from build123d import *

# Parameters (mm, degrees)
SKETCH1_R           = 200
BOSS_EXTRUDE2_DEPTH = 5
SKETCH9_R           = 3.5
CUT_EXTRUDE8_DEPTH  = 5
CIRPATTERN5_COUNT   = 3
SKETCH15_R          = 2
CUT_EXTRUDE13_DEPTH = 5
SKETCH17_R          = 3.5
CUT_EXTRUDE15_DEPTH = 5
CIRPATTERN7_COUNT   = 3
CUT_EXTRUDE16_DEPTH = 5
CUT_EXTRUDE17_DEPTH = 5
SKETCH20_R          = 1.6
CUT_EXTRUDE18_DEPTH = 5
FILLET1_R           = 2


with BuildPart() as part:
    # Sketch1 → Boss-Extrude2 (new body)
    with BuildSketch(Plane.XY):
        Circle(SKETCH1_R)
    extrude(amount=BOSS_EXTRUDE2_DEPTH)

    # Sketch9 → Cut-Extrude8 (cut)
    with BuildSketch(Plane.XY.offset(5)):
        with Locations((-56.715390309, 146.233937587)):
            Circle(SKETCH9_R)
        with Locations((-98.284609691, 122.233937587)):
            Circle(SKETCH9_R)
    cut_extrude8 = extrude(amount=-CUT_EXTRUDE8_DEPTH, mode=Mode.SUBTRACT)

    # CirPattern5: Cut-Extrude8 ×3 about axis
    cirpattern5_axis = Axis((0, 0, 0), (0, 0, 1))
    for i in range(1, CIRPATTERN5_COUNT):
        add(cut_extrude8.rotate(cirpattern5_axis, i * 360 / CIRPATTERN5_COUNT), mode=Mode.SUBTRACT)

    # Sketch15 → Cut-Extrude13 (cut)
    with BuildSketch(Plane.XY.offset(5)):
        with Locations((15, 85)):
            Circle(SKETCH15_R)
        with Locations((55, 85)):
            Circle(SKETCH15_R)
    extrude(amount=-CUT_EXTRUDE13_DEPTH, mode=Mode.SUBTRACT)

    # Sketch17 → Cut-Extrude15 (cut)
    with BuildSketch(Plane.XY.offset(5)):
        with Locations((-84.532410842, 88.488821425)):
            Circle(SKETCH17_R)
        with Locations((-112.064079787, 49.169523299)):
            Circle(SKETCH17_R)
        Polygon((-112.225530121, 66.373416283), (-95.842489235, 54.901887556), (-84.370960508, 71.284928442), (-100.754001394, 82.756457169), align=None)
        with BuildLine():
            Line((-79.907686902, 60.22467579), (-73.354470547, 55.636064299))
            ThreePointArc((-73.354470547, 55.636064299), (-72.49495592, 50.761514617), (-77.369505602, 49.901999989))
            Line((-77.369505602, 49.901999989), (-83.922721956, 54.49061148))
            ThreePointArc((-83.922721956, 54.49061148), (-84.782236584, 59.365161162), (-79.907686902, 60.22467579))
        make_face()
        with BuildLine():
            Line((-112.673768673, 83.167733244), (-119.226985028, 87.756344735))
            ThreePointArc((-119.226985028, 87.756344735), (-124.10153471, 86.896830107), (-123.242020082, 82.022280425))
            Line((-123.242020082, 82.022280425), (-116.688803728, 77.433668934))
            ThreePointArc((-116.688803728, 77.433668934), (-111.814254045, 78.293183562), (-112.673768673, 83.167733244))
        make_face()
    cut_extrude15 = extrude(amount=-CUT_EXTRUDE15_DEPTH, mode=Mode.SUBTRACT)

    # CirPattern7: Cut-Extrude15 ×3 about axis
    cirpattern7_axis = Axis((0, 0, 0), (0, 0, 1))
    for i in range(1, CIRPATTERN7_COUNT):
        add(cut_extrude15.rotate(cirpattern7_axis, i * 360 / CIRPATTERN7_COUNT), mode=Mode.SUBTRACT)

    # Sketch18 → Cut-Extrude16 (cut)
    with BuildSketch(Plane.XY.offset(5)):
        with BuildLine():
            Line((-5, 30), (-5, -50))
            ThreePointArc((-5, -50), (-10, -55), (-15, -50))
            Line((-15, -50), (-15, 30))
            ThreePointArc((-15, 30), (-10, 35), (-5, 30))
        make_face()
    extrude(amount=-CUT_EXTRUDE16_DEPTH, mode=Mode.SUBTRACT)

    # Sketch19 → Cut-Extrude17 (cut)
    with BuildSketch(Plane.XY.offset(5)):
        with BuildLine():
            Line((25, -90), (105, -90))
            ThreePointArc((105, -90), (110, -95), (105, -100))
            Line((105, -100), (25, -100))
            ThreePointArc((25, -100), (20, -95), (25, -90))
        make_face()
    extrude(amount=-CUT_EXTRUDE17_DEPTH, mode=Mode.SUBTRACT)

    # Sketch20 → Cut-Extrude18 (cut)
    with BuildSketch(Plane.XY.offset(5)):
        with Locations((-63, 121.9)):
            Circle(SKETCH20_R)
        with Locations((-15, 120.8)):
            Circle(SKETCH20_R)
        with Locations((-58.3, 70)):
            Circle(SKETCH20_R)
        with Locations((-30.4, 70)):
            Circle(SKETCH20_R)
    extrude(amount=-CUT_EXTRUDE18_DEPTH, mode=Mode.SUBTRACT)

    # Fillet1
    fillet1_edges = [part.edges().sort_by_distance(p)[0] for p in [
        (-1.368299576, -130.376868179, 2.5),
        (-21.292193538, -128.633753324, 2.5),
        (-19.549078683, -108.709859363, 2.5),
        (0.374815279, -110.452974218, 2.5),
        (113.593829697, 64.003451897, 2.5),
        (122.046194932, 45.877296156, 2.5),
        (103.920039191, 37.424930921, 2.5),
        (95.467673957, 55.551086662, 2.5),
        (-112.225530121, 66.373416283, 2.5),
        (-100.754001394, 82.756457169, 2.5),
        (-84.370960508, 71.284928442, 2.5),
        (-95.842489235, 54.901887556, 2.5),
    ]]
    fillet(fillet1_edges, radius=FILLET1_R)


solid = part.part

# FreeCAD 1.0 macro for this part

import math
import FreeCAD as App
import Part
import Sketcher

V = App.Vector
Q = App.Units.Quantity


def edges_at(feature, points):
    """Names of the edges that pass closest to the given points."""
    edges = feature.Shape.Edges
    near = lambda p: min(range(len(edges)), key=lambda i: edges[i].distToShape(Part.Vertex(*p))[0])
    return sorted({f"Edge{near(p) + 1}" for p in points})


def add_polygon(sketch, points):
    """Adds a closed chain of lines whose ends are joined by coincident constraints."""
    first, n = sketch.GeometryCount, len(points)
    for a, b in zip(points, points[1:] + points[:1]):
        sketch.addGeometry(Part.LineSegment(App.Vector(*a, 0), App.Vector(*b, 0)), False)
    for i in range(n):
        sketch.addConstraint(Sketcher.Constraint("Coincident", first + i, 2, first + (i + 1) % n, 1))

doc = App.newDocument("Part")
params = doc.addObject("Spreadsheet::Sheet", "Params")
for row, (alias, value) in enumerate([
    ("sketch1_diameter", "400 mm"),
    ("pad1_length", "5 mm"),
    ("sketch2_diameter", "7 mm"),
    ("pocket1_length", "5 mm"),
    ("sketch3_diameter", "4 mm"),
    ("pocket2_length", "5 mm"),
    ("sketch4_diameter", "7 mm"),
    ("sketch4_length", "20 mm"),
    ("sketch4_length2", "8 mm"),
    ("pocket3_length", "5 mm"),
    ("sketch5_radius", "5 mm"),
    ("sketch5_height", "80 mm"),
    ("pocket4_length", "5 mm"),
    ("sketch6_radius", "5 mm"),
    ("sketch6_width", "80 mm"),
    ("pocket5_length", "5 mm"),
    ("sketch7_diameter", "3.2 mm"),
    ("pocket6_length", "5 mm"),
    ("fillet_radius", "2 mm"),
], start=1):
    params.set(f"A{row}", alias)
    params.set(f"B{row}", "=" + value)
    params.setAlias(f"B{row}", alias)

body = doc.addObject("PartDesign::Body", "Body")

# Sketch on XY plane
sketch1 = doc.addObject("Sketcher::SketchObject", "Sketch")
body.addObject(sketch1)
sketch1.AttachmentSupport = (doc.XY_Plane, [""])
sketch1.MapMode = "FlatFace"
sketch1.addGeometry(Part.Circle(V(0, 0, 0), V(0, 0, 1), 200), False)
sketch1.addConstraint([
    Sketcher.Constraint("Coincident", 0, 3, -1, 1),
    Sketcher.Constraint("Diameter", 0, Q("400 mm")),
])
sketch1.setExpression("Constraints[1]", "Params.sketch1_diameter")
pad1 = doc.addObject("PartDesign::Pad", "Pad")
body.addObject(pad1)
pad1.Profile = sketch1
pad1.setExpression("Length", "Params.pad1_length")

# Sketch on XY plane
sketch2 = doc.addObject("Sketcher::SketchObject", "Sketch001")
body.addObject(sketch2)
sketch2.AttachmentSupport = (doc.XY_Plane, [""])
sketch2.MapMode = "FlatFace"
sketch2.AttachmentOffset = App.Placement(V(0, 0, 5), App.Rotation())
sketch2.addGeometry([
    Part.Circle(V(-56.7, 146.2, 0), V(0, 0, 1), 3.5),
    Part.Circle(V(-98.3, 122.2, 0), V(0, 0, 1), 3.5),
], False)
sketch2.addConstraint([
    Sketcher.Constraint("Equal", 0, 1),
    Sketcher.Constraint("Diameter", 0, Q("7 mm")),
    Sketcher.Constraint("DistanceY", 1, 3, 0, 3, Q("24 mm")),
    Sketcher.Constraint("DistanceX", 0, 3, -1, 1, Q("56.71539 mm")),
    Sketcher.Constraint("DistanceX", 1, 3, -1, 1, Q("98.28461 mm")),
    Sketcher.Constraint("DistanceY", -1, 1, 0, 3, Q("146.233938 mm")),
])
sketch2.setExpression("Constraints[1]", "Params.sketch2_diameter")
pocket1 = doc.addObject("PartDesign::Pocket", "Pocket")
body.addObject(pocket1)
pocket1.Profile = sketch2
pocket1.setExpression("Length", "Params.pocket1_length")
doc.recompute()

polarpattern = doc.addObject("PartDesign::PolarPattern", "PolarPattern")
body.addObject(polarpattern)
polarpattern.Originals = [pocket1]
polarpattern.Axis = (doc.Z_Axis, [""])
polarpattern.Angle = 360
polarpattern.Occurrences = 3
body.Tip = polarpattern

# Sketch on XY plane
sketch3 = doc.addObject("Sketcher::SketchObject", "Sketch002")
body.addObject(sketch3)
sketch3.AttachmentSupport = (doc.XY_Plane, [""])
sketch3.MapMode = "FlatFace"
sketch3.AttachmentOffset = App.Placement(V(0, 0, 5), App.Rotation())
sketch3.addGeometry([
    Part.Circle(V(15, 85, 0), V(0, 0, 1), 2),
    Part.Circle(V(55, 85, 0), V(0, 0, 1), 2),
], False)
sketch3.addConstraint([
    Sketcher.Constraint("Equal", 0, 1),
    Sketcher.Constraint("Horizontal", 0, 3, 1, 3),
    Sketcher.Constraint("Diameter", 0, Q("4 mm")),
    Sketcher.Constraint("DistanceX", -1, 1, 0, 3, Q("15 mm")),
    Sketcher.Constraint("DistanceY", -1, 1, 0, 3, Q("85 mm")),
    Sketcher.Constraint("DistanceX", -1, 1, 1, 3, Q("55 mm")),
])
sketch3.setExpression("Constraints[2]", "Params.sketch3_diameter")
pocket2 = doc.addObject("PartDesign::Pocket", "Pocket001")
body.addObject(pocket2)
pocket2.Profile = sketch3
pocket2.setExpression("Length", "Params.pocket2_length")

# Sketch on XY plane
sketch4 = doc.addObject("Sketcher::SketchObject", "Sketch003")
body.addObject(sketch4)
sketch4.AttachmentSupport = (doc.XY_Plane, [""])
sketch4.MapMode = "FlatFace"
sketch4.AttachmentOffset = App.Placement(V(0, 0, 5), App.Rotation())
sketch4.addGeometry(Part.Circle(V(-84.5, 88.5, 0), V(0, 0, 1), 3.5), False)  # 0
sketch4.addGeometry(Part.Circle(V(-112.1, 49.2, 0), V(0, 0, 1), 3.5), False)  # 1
add_polygon(sketch4, [(-112.2, 66.4), (-95.8, 54.9), (-84.4, 71.3), (-100.8, 82.8)])  # lines 2-5
sketch4.addGeometry(Part.LineSegment(V(-73.4, 55.6, 0), V(-79.9, 60.2, 0)), False)  # 6
sketch4.addGeometry(Part.ArcOfCircle(Part.Circle(V(-81.9, 57.4, 0), V(0, 0, 1), 3.5), math.radians(55), math.radians(235)), False)  # 7
sketch4.addGeometry(Part.LineSegment(V(-83.9, 54.5, 0), V(-77.4, 49.9, 0)), False)  # 8
sketch4.addGeometry(Part.ArcOfCircle(Part.Circle(V(-75.4, 52.8, 0), V(0, 0, 1), 3.5), math.radians(-125), math.radians(55)), False)  # 9
sketch4.addGeometry(Part.LineSegment(V(-112.7, 83.2, 0), V(-119.2, 87.8, 0)), False)  # 10
sketch4.addGeometry(Part.ArcOfCircle(Part.Circle(V(-121.2, 84.9, 0), V(0, 0, 1), 3.5), math.radians(55), math.radians(235)), False)  # 11
sketch4.addGeometry(Part.LineSegment(V(-123.2, 82, 0), V(-116.7, 77.4, 0)), False)  # 12
sketch4.addGeometry(Part.ArcOfCircle(Part.Circle(V(-114.7, 80.3, 0), V(0, 0, 1), 3.5), math.radians(-125), math.radians(55)), False)  # 13
sketch4.addConstraint([
    Sketcher.Constraint("Tangent", 6, 2, 7, 1),
    Sketcher.Constraint("Tangent", 7, 2, 8, 1),
    Sketcher.Constraint("Tangent", 8, 2, 9, 1),
    Sketcher.Constraint("Tangent", 9, 2, 6, 1),
    Sketcher.Constraint("Tangent", 10, 2, 11, 1),
    Sketcher.Constraint("Tangent", 11, 2, 12, 1),
    Sketcher.Constraint("Tangent", 12, 2, 13, 1),
    Sketcher.Constraint("Tangent", 13, 2, 10, 1),
    Sketcher.Constraint("Equal", 0, 1),
    Sketcher.Constraint("Equal", 1, 7),
    Sketcher.Constraint("Equal", 7, 9),
    Sketcher.Constraint("Equal", 9, 11),
    Sketcher.Constraint("Equal", 11, 13),
    Sketcher.Constraint("Perpendicular", 2, 3),
    Sketcher.Constraint("Perpendicular", 3, 4),
    Sketcher.Constraint("Perpendicular", 4, 5),
    Sketcher.Constraint("Perpendicular", 5, 6),
    Sketcher.Constraint("Parallel", 8, 10),
    Sketcher.Constraint("Equal", 2, 3),
    Sketcher.Constraint("Equal", 8, 10),
    Sketcher.Constraint("Diameter", 0, Q("7 mm")),
    Sketcher.Constraint("Angle", 2, Q("-35 deg")),
    Sketcher.Constraint("Distance", 2, Q("20 mm")),
    Sketcher.Constraint("Distance", 6, Q("8 mm")),
    Sketcher.Constraint("DistanceX", 4, 2, -1, 1, Q("100.754001 mm")),
    Sketcher.Constraint("DistanceY", -1, 1, 8, 2, Q("49.902 mm")),
    Sketcher.Constraint("DistanceY", -1, 1, 13, 3, Q("80.300701 mm")),
    Sketcher.Constraint("DistanceY", 1, 3, 0, 3, Q("39.319298 mm")),
    Sketcher.Constraint("DistanceX", 11, 3, 7, 3, Q("39.319298 mm")),
    Sketcher.Constraint("DistanceX", 2, 2, 9, 3, Q("20.480501 mm")),
    Sketcher.Constraint("DistanceX", 0, 3, -1, 1, Q("84.532411 mm")),
    Sketcher.Constraint("DistanceY", -1, 1, 0, 3, Q("88.488821 mm")),
    Sketcher.Constraint("DistanceX", 1, 3, -1, 1, Q("112.06408 mm")),
    Sketcher.Constraint("DistanceY", -1, 1, 3, 2, Q("71.284928 mm")),
])
sketch4.setExpression("Constraints[24]", "Params.sketch4_diameter")
sketch4.setExpression("Constraints[26]", "Params.sketch4_length")
sketch4.setExpression("Constraints[27]", "Params.sketch4_length2")
pocket3 = doc.addObject("PartDesign::Pocket", "Pocket002")
body.addObject(pocket3)
pocket3.Profile = sketch4
pocket3.setExpression("Length", "Params.pocket3_length")
doc.recompute()

polarpattern2 = doc.addObject("PartDesign::PolarPattern", "PolarPattern001")
body.addObject(polarpattern2)
polarpattern2.Originals = [pocket3]
polarpattern2.Axis = (doc.Z_Axis, [""])
polarpattern2.Angle = 360
polarpattern2.Occurrences = 3
body.Tip = polarpattern2

# Sketch on XY plane
sketch5 = doc.addObject("Sketcher::SketchObject", "Sketch004")
body.addObject(sketch5)
sketch5.AttachmentSupport = (doc.XY_Plane, [""])
sketch5.MapMode = "FlatFace"
sketch5.AttachmentOffset = App.Placement(V(0, 0, 5), App.Rotation())
sketch5.addGeometry([
    Part.LineSegment(V(-5, -50, 0), V(-5, 30, 0)),
    Part.ArcOfCircle(Part.Circle(V(-10, 30, 0), V(0, 0, 1), 5), math.radians(0), math.radians(180)),
    Part.LineSegment(V(-15, 30, 0), V(-15, -50, 0)),
    Part.ArcOfCircle(Part.Circle(V(-10, -50, 0), V(0, 0, 1), 5), math.radians(180), math.radians(360)),
], False)
sketch5.addConstraint([
    Sketcher.Constraint("Tangent", 0, 2, 1, 1),
    Sketcher.Constraint("Tangent", 1, 2, 2, 1),
    Sketcher.Constraint("Tangent", 2, 2, 3, 1),
    Sketcher.Constraint("Tangent", 3, 2, 0, 1),
    Sketcher.Constraint("Vertical", 0),
    Sketcher.Constraint("Vertical", 2),
    Sketcher.Constraint("Radius", 1, Q("5 mm")),
    Sketcher.Constraint("DistanceY", 0, 1, 0, 2, Q("80 mm")),
    Sketcher.Constraint("DistanceX", 1, 3, -1, 1, Q("10 mm")),
    Sketcher.Constraint("DistanceY", -1, 1, 1, 3, Q("30 mm")),
])
sketch5.setExpression("Constraints[6]", "Params.sketch5_radius")
sketch5.setExpression("Constraints[7]", "Params.sketch5_height")
pocket4 = doc.addObject("PartDesign::Pocket", "Pocket003")
body.addObject(pocket4)
pocket4.Profile = sketch5
pocket4.setExpression("Length", "Params.pocket4_length")

# Sketch on XY plane
sketch6 = doc.addObject("Sketcher::SketchObject", "Sketch005")
body.addObject(sketch6)
sketch6.AttachmentSupport = (doc.XY_Plane, [""])
sketch6.MapMode = "FlatFace"
sketch6.AttachmentOffset = App.Placement(V(0, 0, 5), App.Rotation())
sketch6.addGeometry([
    Part.LineSegment(V(105, -90, 0), V(25, -90, 0)),
    Part.ArcOfCircle(Part.Circle(V(25, -95, 0), V(0, 0, 1), 5), math.radians(90), math.radians(270)),
    Part.LineSegment(V(25, -100, 0), V(105, -100, 0)),
    Part.ArcOfCircle(Part.Circle(V(105, -95, 0), V(0, 0, 1), 5), math.radians(-90), math.radians(90)),
], False)
sketch6.addConstraint([
    Sketcher.Constraint("Tangent", 0, 2, 1, 1),
    Sketcher.Constraint("Tangent", 1, 2, 2, 1),
    Sketcher.Constraint("Tangent", 2, 2, 3, 1),
    Sketcher.Constraint("Tangent", 3, 2, 0, 1),
    Sketcher.Constraint("Horizontal", 0),
    Sketcher.Constraint("Horizontal", 2),
    Sketcher.Constraint("Radius", 1, Q("5 mm")),
    Sketcher.Constraint("DistanceX", 0, 2, 0, 1, Q("80 mm")),
    Sketcher.Constraint("DistanceX", -1, 1, 1, 3, Q("25 mm")),
    Sketcher.Constraint("DistanceY", 1, 3, -1, 1, Q("95 mm")),
])
sketch6.setExpression("Constraints[6]", "Params.sketch6_radius")
sketch6.setExpression("Constraints[7]", "Params.sketch6_width")
pocket5 = doc.addObject("PartDesign::Pocket", "Pocket004")
body.addObject(pocket5)
pocket5.Profile = sketch6
pocket5.setExpression("Length", "Params.pocket5_length")

# Sketch on XY plane
sketch7 = doc.addObject("Sketcher::SketchObject", "Sketch006")
body.addObject(sketch7)
sketch7.AttachmentSupport = (doc.XY_Plane, [""])
sketch7.MapMode = "FlatFace"
sketch7.AttachmentOffset = App.Placement(V(0, 0, 5), App.Rotation())
sketch7.addGeometry([
    Part.Circle(V(-63, 121.9, 0), V(0, 0, 1), 1.6),
    Part.Circle(V(-15, 120.8, 0), V(0, 0, 1), 1.6),
    Part.Circle(V(-58.3, 70, 0), V(0, 0, 1), 1.6),
    Part.Circle(V(-30.4, 70, 0), V(0, 0, 1), 1.6),
], False)
sketch7.addConstraint([
    Sketcher.Constraint("Equal", 0, 1),
    Sketcher.Constraint("Equal", 1, 2),
    Sketcher.Constraint("Equal", 2, 3),
    Sketcher.Constraint("Horizontal", 2, 3, 3, 3),
    Sketcher.Constraint("Diameter", 0, Q("3.2 mm")),
    Sketcher.Constraint("DistanceX", 0, 3, -1, 1, Q("63 mm")),
    Sketcher.Constraint("DistanceX", 1, 3, -1, 1, Q("15 mm")),
    Sketcher.Constraint("DistanceY", -1, 1, 2, 3, Q("70 mm")),
    Sketcher.Constraint("DistanceY", -1, 1, 0, 3, Q("121.9 mm")),
    Sketcher.Constraint("DistanceY", -1, 1, 1, 3, Q("120.8 mm")),
    Sketcher.Constraint("DistanceX", 2, 3, -1, 1, Q("58.3 mm")),
    Sketcher.Constraint("DistanceX", 3, 3, -1, 1, Q("30.4 mm")),
])
sketch7.setExpression("Constraints[4]", "Params.sketch7_diameter")
pocket6 = doc.addObject("PartDesign::Pocket", "Pocket005")
body.addObject(pocket6)
pocket6.Profile = sketch7
pocket6.setExpression("Length", "Params.pocket6_length")
doc.recompute()

fillet = doc.addObject("PartDesign::Fillet", "Fillet")
body.addObject(fillet)
fillet.Base = (pocket6, edges_at(pocket6, [
    (-1.368, -130.377, 2.5),
    (-21.292, -128.634, 2.5),
    (-19.549, -108.71, 2.5),
    (0.375, -110.453, 2.5),
    (113.594, 64.003, 2.5),
    (122.046, 45.877, 2.5),
    (103.92, 37.425, 2.5),
    (95.468, 55.551, 2.5),
    (-112.226, 66.373, 2.5),
    (-100.754, 82.756, 2.5),
    (-84.371, 71.285, 2.5),
    (-95.842, 54.902, 2.5),
]))
fillet.setExpression("Radius", "Params.fillet_radius")

doc.recompute()
